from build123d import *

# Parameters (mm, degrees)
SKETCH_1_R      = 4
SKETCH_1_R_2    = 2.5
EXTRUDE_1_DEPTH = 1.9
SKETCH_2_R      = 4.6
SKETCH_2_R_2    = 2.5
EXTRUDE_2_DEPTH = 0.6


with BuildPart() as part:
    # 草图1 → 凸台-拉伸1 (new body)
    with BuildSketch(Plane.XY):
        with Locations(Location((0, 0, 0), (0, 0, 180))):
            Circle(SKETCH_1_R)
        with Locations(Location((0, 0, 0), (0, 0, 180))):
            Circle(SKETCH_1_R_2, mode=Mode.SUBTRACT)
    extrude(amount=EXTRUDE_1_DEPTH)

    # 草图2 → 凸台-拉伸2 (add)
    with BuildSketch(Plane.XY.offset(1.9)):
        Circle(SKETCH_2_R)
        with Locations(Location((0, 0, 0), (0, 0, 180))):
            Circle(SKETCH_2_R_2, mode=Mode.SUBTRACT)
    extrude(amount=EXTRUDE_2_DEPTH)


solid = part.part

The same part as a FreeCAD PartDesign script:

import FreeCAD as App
import Part
import Sketcher

V = App.Vector

doc = App.newDocument("Part")
body = doc.addObject("PartDesign::Body", "Body")

sketch1 = doc.addObject("Sketcher::SketchObject", "Sketch")
body.addObject(sketch1)
sketch1.AttachmentSupport = (doc.XY_Plane, [""])
sketch1.MapMode = "FlatFace"
sketch1.addGeometry([
    Part.Circle(V(0, 0, 0), V(0, 0, 1), 4),
    Part.Circle(V(0, 0, 0), V(0, 0, 1), 2.5),
], False)
sketch1.addConstraint([
    Sketcher.Constraint("Coincident", 0, 3, -1, 1),
    Sketcher.Constraint("Coincident", 1, 3, -1, 1),
    Sketcher.Constraint("Diameter", 0, 8.0),
    Sketcher.Constraint("Diameter", 1, 5.0),
])
pad1 = doc.addObject("PartDesign::Pad", "Pad")
body.addObject(pad1)
pad1.Profile = sketch1
pad1.Length = 1.9

sketch2 = doc.addObject("Sketcher::SketchObject", "Sketch001")
body.addObject(sketch2)
sketch2.AttachmentSupport = (doc.XY_Plane, [""])
sketch2.MapMode = "FlatFace"
sketch2.AttachmentOffset = App.Placement(V(0, 0, 1.9), App.Rotation())
sketch2.addGeometry([
    Part.Circle(V(0, 0, 0), V(0, 0, 1), 4.6),
    Part.Circle(V(0, 0, 0), V(0, 0, 1), 2.5),
], False)
sketch2.addConstraint([
    Sketcher.Constraint("Coincident", 0, 3, -1, 1),
    Sketcher.Constraint("Coincident", 1, 3, -1, 1),
    Sketcher.Constraint("Diameter", 1, 5.0),
    Sketcher.Constraint("Diameter", 0, 9.2),
])
pad2 = doc.addObject("PartDesign::Pad", "Pad001")
body.addObject(pad2)
pad2.Profile = sketch2
pad2.Length = 0.6

doc.recompute()
